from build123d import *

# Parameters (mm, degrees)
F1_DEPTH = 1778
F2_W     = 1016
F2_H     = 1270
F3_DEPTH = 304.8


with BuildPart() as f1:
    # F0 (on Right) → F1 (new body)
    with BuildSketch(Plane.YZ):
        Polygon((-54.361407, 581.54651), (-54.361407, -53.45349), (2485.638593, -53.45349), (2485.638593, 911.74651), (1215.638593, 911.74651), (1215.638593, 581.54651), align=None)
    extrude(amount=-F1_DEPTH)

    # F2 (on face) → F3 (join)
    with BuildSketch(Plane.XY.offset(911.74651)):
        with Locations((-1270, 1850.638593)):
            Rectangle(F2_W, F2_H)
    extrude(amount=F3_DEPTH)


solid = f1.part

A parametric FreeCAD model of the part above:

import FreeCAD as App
import Part
import Sketcher
from FreeCAD import Vector
Q = App.Units.Quantity


def add_polygon(sketch, points):
    """Adds a closed chain of lines whose ends are joined by coincident constraints."""
    first, n = sketch.GeometryCount, len(points)
    for a, b in zip(points, points[1:] + points[:1]):
        sketch.addGeometry(Part.LineSegment(App.Vector(*a, 0), App.Vector(*b, 0)), False)
    for i in range(n):
        sketch.addConstraint(Sketcher.Constraint("Coincident", first + i, 2, first + (i + 1) % n, 1))

doc = App.newDocument("Part")
params = doc.addObject("Spreadsheet::Sheet", "Params")
for row, (alias, value) in enumerate([
    ("sketch1_width", "100 in"),
    ("sketch1_height", "25 in"),
    ("sketch1_height2", "38 in"),
    ("pad1_length", "70 in"),
    ("sketch2_width", "40 in"),
    ("sketch2_height", "50 in"),
    ("pad2_length", "12 in"),
], start=1):
    params.set(f"A{row}", alias)
    params.set(f"B{row}", "=" + value)
    params.setAlias(f"B{row}", alias)

body = doc.addObject("PartDesign::Body", "Body")

# Sketch on YZ plane
sketch1 = body.newObject("Sketcher::SketchObject", "Sketch")
sketch1.AttachmentSupport = (doc.getObject("YZ_Plane"), [""])
sketch1.MapMode = "FlatFace"
add_polygon(sketch1, [(-54, 582), (-54, -53), (2486, -53), (2486, 912), (1216, 912), (1216, 582)])  # lines 0-5
sketch1.addConstraint(Sketcher.Constraint("Vertical", 0))
sketch1.addConstraint(Sketcher.Constraint("Horizontal", 1))
sketch1.addConstraint(Sketcher.Constraint("Vertical", 2))
sketch1.addConstraint(Sketcher.Constraint("Horizontal", 3))
sketch1.addConstraint(Sketcher.Constraint("Vertical", 4))
sketch1.addConstraint(Sketcher.Constraint("Horizontal", 5))
sketch1.addConstraint(Sketcher.Constraint("Equal", 3, 5))
sketch1.addConstraint(Sketcher.Constraint("DistanceX", 1, 1, 1, 2, Q("100 in")))
sketch1.addConstraint(Sketcher.Constraint("DistanceY", 0, 2, 0, 1, Q("25 in")))
sketch1.addConstraint(Sketcher.Constraint("DistanceY", 2, 1, 2, 2, Q("38 in")))
sketch1.addConstraint(Sketcher.Constraint("DistanceY", 0, 2, -1, 1, Q("53.45349 mm")))
sketch1.addConstraint(Sketcher.Constraint("DistanceX", 0, 2, -1, 1, Q("54.361407 mm")))
sketch1.setExpression("Constraints[13]", "Params.sketch1_width")
sketch1.setExpression("Constraints[14]", "Params.sketch1_height")
sketch1.setExpression("Constraints[15]", "Params.sketch1_height2")
pad1 = body.newObject("PartDesign::Pad", "Pad")
pad1.Profile = sketch1
pad1.setExpression("Length", "Params.pad1_length")
pad1.Reversed = True

# Sketch on XY plane
sketch2 = body.newObject("Sketcher::SketchObject", "Sketch001")
sketch2.AttachmentSupport = (doc.getObject("XY_Plane"), [""])
sketch2.MapMode = "FlatFace"
sketch2.AttachmentOffset = App.Placement(Vector(0, 0, 911.74651), App.Rotation())
add_polygon(sketch2, [(-1778, 2486), (-1778, 1216), (-762, 1216), (-762, 2486)])  # lines 0-3
sketch2.addConstraint(Sketcher.Constraint("Vertical", 0))
sketch2.addConstraint(Sketcher.Constraint("Horizontal", 1))
sketch2.addConstraint(Sketcher.Constraint("Vertical", 2))
sketch2.addConstraint(Sketcher.Constraint("Horizontal", 3))
sketch2.addConstraint(Sketcher.Constraint("DistanceX", 1, 1, 1, 2, Q("40 in")))
sketch2.addConstraint(Sketcher.Constraint("DistanceY", 0, 2, 0, 1, Q("50 in")))
sketch2.addConstraint(Sketcher.Constraint("DistanceX", 0, 2, -1, 1, Q("70 in")))
sketch2.addConstraint(Sketcher.Constraint("DistanceY", -1, 1, 0, 2, Q("1215.638593 mm")))
sketch2.setExpression("Constraints[8]", "Params.sketch2_width")
sketch2.setExpression("Constraints[9]", "Params.sketch2_height")
pad2 = body.newObject("PartDesign::Pad", "Pad001")
pad2.Profile = sketch2
pad2.setExpression("Length", "Params.pad2_length")

doc.recompute()
